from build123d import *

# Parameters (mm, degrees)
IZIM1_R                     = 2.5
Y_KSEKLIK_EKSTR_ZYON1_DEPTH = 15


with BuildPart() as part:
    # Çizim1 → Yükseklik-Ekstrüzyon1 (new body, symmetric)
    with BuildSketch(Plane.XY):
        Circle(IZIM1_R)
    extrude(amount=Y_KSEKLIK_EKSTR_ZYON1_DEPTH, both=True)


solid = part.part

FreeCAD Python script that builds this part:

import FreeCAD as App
import Part
import Sketcher

doc = App.newDocument("Part")
params = doc.addObject("Spreadsheet::Sheet", "Params")
for row, (alias, value) in enumerate([
    ("sketch1_diameter", "5 mm"),
    ("pad1_length", "30 mm"),
], start=1):
    params.set(f"A{row}", alias)
    params.set(f"B{row}", "=" + value)
    params.setAlias(f"B{row}", alias)

body = doc.addObject("PartDesign::Body", "Body")

sketch1 = body.newObject("Sketcher::SketchObject", "Sketch")
sketch1.AttachmentSupport = (doc.getObject("XY_Plane"), [""])
sketch1.MapMode = "FlatFace"
sketch1.addGeometry(Part.Circle(App.Vector(0, 0, 0), App.Vector(0, 0, 1), 2.5), False)
sketch1.addConstraint(Sketcher.Constraint("Coincident", 0, 3, -1, 1))
sketch1.addConstraint(Sketcher.Constraint("Diameter", 0, 5.0))
sketch1.setExpression("Constraints[1]", "Params.sketch1_diameter")
pad1 = body.newObject("PartDesign::Pad", "Pad")
pad1.Profile = sketch1
pad1.setExpression("Length", "Params.pad1_length")
pad1.Midplane = True

doc.recompute()
